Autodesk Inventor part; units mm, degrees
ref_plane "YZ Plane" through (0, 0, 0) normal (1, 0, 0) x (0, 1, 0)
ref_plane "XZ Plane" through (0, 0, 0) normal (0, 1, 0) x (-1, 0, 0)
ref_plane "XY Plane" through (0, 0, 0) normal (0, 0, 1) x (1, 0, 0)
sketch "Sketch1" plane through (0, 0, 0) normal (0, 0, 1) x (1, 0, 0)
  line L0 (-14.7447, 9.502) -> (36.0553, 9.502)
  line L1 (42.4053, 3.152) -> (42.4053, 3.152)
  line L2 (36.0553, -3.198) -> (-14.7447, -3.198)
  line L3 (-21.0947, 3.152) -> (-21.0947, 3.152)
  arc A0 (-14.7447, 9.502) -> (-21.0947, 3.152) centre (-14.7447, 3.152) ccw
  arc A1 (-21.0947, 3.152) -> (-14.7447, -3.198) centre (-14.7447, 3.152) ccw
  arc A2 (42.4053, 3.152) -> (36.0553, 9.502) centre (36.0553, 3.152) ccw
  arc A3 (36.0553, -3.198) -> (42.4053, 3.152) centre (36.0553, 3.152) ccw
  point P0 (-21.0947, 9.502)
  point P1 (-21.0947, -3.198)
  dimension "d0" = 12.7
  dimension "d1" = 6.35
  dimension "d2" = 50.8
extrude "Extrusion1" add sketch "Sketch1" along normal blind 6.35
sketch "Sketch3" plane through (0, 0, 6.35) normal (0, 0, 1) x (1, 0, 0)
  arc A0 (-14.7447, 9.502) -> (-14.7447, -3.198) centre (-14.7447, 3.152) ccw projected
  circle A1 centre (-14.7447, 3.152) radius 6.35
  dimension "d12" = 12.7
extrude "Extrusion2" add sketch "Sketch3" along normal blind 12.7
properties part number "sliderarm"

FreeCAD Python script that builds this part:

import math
import FreeCAD as App
import Part
import Sketcher

V = App.Vector
Q = App.Units.Quantity

doc = App.newDocument("Part")
body = doc.addObject("PartDesign::Body", "Body")

sketch1 = body.newObject("Sketcher::SketchObject", "Sketch")
sketch1.AttachmentSupport = (doc.getObject("XY_Plane"), [""])
sketch1.MapMode = "FlatFace"
sketch1.addGeometry(Part.LineSegment(V(36, 10, 0), V(-15, 10, 0)), False)
sketch1.addGeometry(Part.ArcOfCircle(Part.Circle(V(-15, 3, 0), V(0, 0, 1), 6), math.radians(90), math.radians(270)), False)
sketch1.addGeometry(Part.LineSegment(V(-15, -3, 0), V(36, -3, 0)), False)
sketch1.addGeometry(Part.ArcOfCircle(Part.Circle(V(36, 3, 0), V(0, 0, 1), 6), math.radians(-90), math.radians(90)), False)
sketch1.addConstraint(Sketcher.Constraint("Tangent", 0, 2, 1, 1))
sketch1.addConstraint(Sketcher.Constraint("Tangent", 1, 2, 2, 1))
sketch1.addConstraint(Sketcher.Constraint("Tangent", 2, 2, 3, 1))
sketch1.addConstraint(Sketcher.Constraint("Tangent", 3, 2, 0, 1))
sketch1.addConstraint(Sketcher.Constraint("Horizontal", 0))
sketch1.addConstraint(Sketcher.Constraint("Horizontal", 2))
sketch1.addConstraint(Sketcher.Constraint("DistanceX", 0, 2, 0, 1, Q("2 in")))
sketch1.addConstraint(Sketcher.Constraint("Radius", 1, Q("0.25 in")))
sketch1.addConstraint(Sketcher.Constraint("DistanceX", 1, 3, -1, 1, Q("0.5805 in")))
sketch1.addConstraint(Sketcher.Constraint("DistanceY", -1, 1, 1, 3, Q("0.1241 in")))
pad1 = body.newObject("PartDesign::Pad", "Pad")
pad1.Profile = sketch1
pad1.Length = Q("0.25 in")

sketch2 = body.newObject("Sketcher::SketchObject", "Sketch001")
sketch2.AttachmentSupport = (doc.getObject("XY_Plane"), [""])
sketch2.MapMode = "FlatFace"
sketch2.AttachmentOffset = App.Placement(V(0, 0, 0.25 * 25.4), App.Rotation())
sketch2.addGeometry(Part.Circle(V(-15, 3, 0), V(0, 0, 1), 6), False)
sketch2.addConstraint(Sketcher.Constraint("Diameter", 0, Q("0.5 in")))
sketch2.addConstraint(Sketcher.Constraint("DistanceX", 0, 3, -1, 1, Q("0.5805 in")))
sketch2.addConstraint(Sketcher.Constraint("DistanceY", -1, 1, 0, 3, Q("0.1241 in")))
pad2 = body.newObject("PartDesign::Pad", "Pad001")
pad2.Profile = sketch2
pad2.Length = Q("0.5 in")

doc.recompute()
